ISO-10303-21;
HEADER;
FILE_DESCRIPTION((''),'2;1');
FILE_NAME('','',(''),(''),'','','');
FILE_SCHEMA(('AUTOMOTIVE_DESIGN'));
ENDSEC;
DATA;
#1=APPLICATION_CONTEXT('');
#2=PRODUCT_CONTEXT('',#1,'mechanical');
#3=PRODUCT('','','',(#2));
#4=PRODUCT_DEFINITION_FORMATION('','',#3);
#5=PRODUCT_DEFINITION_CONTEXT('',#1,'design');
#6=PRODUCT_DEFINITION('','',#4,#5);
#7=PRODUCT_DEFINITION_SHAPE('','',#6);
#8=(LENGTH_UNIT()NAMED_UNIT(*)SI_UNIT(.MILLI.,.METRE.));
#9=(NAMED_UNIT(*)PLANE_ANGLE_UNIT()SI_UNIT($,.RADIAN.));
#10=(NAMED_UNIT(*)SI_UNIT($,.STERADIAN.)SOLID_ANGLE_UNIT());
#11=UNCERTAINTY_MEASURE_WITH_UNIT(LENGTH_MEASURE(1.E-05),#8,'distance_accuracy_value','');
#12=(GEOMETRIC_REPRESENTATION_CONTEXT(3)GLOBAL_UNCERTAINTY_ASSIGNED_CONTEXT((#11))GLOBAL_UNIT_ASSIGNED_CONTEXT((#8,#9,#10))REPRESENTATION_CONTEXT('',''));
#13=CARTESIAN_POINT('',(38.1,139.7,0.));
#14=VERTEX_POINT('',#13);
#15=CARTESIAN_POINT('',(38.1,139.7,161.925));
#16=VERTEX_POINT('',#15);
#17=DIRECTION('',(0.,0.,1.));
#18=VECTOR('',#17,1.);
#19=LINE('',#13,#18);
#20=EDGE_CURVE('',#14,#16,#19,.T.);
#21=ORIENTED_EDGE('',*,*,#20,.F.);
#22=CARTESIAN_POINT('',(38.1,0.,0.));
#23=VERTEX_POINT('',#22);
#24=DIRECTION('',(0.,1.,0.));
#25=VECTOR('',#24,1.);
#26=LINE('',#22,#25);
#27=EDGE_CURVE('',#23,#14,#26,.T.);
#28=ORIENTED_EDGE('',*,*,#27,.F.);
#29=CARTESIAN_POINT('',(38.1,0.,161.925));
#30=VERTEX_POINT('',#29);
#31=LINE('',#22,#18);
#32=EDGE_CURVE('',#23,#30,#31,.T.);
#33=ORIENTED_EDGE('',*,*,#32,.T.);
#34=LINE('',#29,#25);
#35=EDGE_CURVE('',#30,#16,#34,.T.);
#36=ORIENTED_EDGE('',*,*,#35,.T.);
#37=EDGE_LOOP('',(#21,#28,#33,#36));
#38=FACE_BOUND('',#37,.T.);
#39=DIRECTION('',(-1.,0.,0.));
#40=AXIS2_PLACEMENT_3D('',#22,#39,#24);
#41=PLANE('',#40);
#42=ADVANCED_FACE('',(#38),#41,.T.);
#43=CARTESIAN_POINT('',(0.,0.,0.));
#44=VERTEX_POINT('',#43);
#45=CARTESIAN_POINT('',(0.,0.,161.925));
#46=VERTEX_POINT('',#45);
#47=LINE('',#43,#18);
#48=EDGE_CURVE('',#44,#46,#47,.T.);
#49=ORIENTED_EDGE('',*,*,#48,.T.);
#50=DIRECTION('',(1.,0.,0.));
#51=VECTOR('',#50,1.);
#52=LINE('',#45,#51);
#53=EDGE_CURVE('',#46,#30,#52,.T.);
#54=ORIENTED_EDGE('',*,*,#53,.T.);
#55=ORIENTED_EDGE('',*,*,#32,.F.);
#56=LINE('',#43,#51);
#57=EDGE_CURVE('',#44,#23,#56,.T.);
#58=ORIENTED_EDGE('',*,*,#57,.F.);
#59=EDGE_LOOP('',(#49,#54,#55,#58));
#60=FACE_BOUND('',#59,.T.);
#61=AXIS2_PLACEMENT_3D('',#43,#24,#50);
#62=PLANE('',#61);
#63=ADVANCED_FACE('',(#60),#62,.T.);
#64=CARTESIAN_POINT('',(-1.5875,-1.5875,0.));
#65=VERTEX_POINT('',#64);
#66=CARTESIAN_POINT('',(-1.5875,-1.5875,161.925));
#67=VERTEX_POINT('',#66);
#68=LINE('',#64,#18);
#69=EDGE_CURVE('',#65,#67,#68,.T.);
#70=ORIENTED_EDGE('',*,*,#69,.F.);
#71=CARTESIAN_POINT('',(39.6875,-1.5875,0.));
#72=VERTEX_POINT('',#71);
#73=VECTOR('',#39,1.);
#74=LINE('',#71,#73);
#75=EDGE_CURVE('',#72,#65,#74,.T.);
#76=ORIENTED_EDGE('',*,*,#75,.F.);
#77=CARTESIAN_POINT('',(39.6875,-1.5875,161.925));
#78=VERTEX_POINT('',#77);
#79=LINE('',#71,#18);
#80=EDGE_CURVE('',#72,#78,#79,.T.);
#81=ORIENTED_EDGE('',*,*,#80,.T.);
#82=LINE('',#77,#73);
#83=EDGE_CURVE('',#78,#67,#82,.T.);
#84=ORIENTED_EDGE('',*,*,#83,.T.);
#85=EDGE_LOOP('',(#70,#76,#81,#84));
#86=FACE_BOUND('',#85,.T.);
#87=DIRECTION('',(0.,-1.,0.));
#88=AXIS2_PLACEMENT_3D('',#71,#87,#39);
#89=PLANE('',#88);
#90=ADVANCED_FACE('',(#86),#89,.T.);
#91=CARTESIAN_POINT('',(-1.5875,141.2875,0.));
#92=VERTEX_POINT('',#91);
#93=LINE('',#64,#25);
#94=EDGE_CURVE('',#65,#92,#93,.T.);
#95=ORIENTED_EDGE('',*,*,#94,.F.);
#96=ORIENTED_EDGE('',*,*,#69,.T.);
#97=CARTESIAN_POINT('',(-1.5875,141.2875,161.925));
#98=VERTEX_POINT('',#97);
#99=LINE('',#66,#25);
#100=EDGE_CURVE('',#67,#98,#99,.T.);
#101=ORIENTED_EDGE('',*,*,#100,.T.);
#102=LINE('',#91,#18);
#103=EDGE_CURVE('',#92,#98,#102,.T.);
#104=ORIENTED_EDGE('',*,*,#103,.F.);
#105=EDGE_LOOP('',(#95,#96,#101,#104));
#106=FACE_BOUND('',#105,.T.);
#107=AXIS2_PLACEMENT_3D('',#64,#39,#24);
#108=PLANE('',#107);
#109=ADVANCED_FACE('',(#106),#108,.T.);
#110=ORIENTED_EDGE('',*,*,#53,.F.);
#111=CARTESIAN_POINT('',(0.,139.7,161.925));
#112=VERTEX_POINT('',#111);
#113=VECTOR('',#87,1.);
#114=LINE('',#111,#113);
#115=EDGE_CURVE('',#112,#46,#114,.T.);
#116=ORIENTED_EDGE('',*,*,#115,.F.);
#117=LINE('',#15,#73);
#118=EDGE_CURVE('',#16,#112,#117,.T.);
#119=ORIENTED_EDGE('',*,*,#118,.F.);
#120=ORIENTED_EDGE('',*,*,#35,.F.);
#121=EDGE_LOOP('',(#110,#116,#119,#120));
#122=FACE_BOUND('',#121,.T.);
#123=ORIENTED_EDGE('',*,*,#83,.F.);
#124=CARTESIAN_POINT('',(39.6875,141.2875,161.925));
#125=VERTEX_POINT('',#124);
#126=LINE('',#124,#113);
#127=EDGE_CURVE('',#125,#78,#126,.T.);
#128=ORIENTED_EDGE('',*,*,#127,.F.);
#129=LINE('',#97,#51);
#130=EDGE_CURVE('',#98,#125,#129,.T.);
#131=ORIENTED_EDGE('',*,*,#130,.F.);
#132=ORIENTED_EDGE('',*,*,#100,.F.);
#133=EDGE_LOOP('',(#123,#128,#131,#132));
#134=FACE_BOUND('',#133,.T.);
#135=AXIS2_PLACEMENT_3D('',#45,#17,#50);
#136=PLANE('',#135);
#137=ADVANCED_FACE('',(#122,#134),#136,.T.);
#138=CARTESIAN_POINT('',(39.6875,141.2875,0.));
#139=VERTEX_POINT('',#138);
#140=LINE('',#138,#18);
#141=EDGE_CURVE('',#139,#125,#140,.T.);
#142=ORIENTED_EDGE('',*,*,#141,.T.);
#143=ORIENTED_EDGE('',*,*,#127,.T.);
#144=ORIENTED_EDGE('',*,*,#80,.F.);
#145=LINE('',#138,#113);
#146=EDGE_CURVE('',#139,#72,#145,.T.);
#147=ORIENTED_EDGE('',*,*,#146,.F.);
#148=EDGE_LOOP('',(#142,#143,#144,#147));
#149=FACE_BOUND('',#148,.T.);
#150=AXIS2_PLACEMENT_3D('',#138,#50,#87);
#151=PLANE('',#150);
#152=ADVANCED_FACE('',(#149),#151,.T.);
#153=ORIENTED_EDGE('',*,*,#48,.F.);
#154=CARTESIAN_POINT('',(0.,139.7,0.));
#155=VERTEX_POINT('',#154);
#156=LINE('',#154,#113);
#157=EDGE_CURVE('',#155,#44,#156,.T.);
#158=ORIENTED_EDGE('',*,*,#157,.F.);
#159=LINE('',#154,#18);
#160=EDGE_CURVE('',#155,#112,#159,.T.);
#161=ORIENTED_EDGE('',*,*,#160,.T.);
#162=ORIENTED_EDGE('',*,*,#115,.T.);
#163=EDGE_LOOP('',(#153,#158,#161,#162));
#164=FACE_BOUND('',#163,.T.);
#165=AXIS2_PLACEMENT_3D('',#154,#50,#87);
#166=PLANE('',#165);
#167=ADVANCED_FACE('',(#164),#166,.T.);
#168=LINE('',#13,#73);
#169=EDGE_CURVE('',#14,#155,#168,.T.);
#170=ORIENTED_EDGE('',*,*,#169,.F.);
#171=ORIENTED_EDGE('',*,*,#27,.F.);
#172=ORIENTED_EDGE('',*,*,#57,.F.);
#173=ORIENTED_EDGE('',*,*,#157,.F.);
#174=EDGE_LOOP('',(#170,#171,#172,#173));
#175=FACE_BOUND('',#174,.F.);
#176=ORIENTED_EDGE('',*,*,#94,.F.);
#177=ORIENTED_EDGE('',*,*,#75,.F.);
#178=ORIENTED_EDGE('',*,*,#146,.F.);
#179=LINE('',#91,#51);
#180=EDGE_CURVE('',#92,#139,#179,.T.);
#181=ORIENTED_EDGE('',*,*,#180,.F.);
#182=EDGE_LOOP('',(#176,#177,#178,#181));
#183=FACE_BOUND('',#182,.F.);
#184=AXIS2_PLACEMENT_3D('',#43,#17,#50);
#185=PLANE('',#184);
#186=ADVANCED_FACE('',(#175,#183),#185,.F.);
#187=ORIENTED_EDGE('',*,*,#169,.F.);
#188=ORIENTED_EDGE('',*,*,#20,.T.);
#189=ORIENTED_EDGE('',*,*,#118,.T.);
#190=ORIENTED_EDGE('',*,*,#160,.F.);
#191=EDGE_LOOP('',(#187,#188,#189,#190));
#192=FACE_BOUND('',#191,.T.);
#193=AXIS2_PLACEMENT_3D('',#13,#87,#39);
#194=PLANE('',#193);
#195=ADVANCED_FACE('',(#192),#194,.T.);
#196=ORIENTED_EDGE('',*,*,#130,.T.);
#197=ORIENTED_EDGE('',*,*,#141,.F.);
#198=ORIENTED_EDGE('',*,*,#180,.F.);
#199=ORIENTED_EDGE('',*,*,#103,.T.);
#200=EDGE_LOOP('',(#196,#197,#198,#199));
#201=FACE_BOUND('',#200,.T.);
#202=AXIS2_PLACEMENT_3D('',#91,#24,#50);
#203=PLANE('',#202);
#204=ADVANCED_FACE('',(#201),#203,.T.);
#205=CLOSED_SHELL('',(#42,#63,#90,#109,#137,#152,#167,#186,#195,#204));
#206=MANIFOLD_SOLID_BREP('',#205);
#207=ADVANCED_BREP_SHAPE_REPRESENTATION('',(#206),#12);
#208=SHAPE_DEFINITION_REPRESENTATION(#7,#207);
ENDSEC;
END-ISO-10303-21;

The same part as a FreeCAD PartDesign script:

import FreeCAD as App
import Part
import Sketcher
Q = App.Units.Quantity


def add_polygon(sketch, points):
    """Adds a closed chain of lines whose ends are joined by coincident constraints."""
    first, n = sketch.GeometryCount, len(points)
    for a, b in zip(points, points[1:] + points[:1]):
        sketch.addGeometry(Part.LineSegment(App.Vector(*a, 0), App.Vector(*b, 0)), False)
    for i in range(n):
        sketch.addConstraint(Sketcher.Constraint("Coincident", first + i, 2, first + (i + 1) % n, 1))

doc = App.newDocument("Part")
body = doc.addObject("PartDesign::Body", "Body")

sketch1 = body.newObject("Sketcher::SketchObject", "Sketch")
sketch1.AttachmentSupport = (doc.getObject("XY_Plane"), [""])
sketch1.MapMode = "FlatFace"
add_polygon(sketch1, [(40, 141), (-2, 141), (-2, -2), (40, -2)])
add_polygon(sketch1, [(38, 0), (0, 0), (0, 140), (38, 140)])
sketch1.addConstraint(Sketcher.Constraint("Horizontal", 0))
sketch1.addConstraint(Sketcher.Constraint("Vertical", 1))
sketch1.addConstraint(Sketcher.Constraint("Horizontal", 2))
sketch1.addConstraint(Sketcher.Constraint("Vertical", 3))
sketch1.addConstraint(Sketcher.Constraint("Horizontal", 4))
sketch1.addConstraint(Sketcher.Constraint("Vertical", 5))
sketch1.addConstraint(Sketcher.Constraint("Horizontal", 6))
sketch1.addConstraint(Sketcher.Constraint("Vertical", 7))
sketch1.addConstraint(Sketcher.Constraint("Coincident", 4, 2, -1, 1))
sketch1.addConstraint(Sketcher.Constraint("DistanceX", 4, 2, 4, 1, Q("1.5 in")))
sketch1.addConstraint(Sketcher.Constraint("DistanceY", 5, 1, 5, 2, Q("5.5 in")))
sketch1.addConstraint(Sketcher.Constraint("DistanceX", 0, 2, -1, 1, Q("0.0625 in")))
sketch1.addConstraint(Sketcher.Constraint("DistanceY", 1, 2, -1, 1, Q("0.0625 in")))
sketch1.addConstraint(Sketcher.Constraint("DistanceY", 5, 2, 0, 2, Q("0.0625 in")))
sketch1.addConstraint(Sketcher.Constraint("DistanceX", 6, 2, 3, 2, Q("0.0625 in")))
pad1 = body.newObject("PartDesign::Pad", "Pad")
pad1.Profile = sketch1
pad1.Length = Q("6.375 in")

doc.recompute()
